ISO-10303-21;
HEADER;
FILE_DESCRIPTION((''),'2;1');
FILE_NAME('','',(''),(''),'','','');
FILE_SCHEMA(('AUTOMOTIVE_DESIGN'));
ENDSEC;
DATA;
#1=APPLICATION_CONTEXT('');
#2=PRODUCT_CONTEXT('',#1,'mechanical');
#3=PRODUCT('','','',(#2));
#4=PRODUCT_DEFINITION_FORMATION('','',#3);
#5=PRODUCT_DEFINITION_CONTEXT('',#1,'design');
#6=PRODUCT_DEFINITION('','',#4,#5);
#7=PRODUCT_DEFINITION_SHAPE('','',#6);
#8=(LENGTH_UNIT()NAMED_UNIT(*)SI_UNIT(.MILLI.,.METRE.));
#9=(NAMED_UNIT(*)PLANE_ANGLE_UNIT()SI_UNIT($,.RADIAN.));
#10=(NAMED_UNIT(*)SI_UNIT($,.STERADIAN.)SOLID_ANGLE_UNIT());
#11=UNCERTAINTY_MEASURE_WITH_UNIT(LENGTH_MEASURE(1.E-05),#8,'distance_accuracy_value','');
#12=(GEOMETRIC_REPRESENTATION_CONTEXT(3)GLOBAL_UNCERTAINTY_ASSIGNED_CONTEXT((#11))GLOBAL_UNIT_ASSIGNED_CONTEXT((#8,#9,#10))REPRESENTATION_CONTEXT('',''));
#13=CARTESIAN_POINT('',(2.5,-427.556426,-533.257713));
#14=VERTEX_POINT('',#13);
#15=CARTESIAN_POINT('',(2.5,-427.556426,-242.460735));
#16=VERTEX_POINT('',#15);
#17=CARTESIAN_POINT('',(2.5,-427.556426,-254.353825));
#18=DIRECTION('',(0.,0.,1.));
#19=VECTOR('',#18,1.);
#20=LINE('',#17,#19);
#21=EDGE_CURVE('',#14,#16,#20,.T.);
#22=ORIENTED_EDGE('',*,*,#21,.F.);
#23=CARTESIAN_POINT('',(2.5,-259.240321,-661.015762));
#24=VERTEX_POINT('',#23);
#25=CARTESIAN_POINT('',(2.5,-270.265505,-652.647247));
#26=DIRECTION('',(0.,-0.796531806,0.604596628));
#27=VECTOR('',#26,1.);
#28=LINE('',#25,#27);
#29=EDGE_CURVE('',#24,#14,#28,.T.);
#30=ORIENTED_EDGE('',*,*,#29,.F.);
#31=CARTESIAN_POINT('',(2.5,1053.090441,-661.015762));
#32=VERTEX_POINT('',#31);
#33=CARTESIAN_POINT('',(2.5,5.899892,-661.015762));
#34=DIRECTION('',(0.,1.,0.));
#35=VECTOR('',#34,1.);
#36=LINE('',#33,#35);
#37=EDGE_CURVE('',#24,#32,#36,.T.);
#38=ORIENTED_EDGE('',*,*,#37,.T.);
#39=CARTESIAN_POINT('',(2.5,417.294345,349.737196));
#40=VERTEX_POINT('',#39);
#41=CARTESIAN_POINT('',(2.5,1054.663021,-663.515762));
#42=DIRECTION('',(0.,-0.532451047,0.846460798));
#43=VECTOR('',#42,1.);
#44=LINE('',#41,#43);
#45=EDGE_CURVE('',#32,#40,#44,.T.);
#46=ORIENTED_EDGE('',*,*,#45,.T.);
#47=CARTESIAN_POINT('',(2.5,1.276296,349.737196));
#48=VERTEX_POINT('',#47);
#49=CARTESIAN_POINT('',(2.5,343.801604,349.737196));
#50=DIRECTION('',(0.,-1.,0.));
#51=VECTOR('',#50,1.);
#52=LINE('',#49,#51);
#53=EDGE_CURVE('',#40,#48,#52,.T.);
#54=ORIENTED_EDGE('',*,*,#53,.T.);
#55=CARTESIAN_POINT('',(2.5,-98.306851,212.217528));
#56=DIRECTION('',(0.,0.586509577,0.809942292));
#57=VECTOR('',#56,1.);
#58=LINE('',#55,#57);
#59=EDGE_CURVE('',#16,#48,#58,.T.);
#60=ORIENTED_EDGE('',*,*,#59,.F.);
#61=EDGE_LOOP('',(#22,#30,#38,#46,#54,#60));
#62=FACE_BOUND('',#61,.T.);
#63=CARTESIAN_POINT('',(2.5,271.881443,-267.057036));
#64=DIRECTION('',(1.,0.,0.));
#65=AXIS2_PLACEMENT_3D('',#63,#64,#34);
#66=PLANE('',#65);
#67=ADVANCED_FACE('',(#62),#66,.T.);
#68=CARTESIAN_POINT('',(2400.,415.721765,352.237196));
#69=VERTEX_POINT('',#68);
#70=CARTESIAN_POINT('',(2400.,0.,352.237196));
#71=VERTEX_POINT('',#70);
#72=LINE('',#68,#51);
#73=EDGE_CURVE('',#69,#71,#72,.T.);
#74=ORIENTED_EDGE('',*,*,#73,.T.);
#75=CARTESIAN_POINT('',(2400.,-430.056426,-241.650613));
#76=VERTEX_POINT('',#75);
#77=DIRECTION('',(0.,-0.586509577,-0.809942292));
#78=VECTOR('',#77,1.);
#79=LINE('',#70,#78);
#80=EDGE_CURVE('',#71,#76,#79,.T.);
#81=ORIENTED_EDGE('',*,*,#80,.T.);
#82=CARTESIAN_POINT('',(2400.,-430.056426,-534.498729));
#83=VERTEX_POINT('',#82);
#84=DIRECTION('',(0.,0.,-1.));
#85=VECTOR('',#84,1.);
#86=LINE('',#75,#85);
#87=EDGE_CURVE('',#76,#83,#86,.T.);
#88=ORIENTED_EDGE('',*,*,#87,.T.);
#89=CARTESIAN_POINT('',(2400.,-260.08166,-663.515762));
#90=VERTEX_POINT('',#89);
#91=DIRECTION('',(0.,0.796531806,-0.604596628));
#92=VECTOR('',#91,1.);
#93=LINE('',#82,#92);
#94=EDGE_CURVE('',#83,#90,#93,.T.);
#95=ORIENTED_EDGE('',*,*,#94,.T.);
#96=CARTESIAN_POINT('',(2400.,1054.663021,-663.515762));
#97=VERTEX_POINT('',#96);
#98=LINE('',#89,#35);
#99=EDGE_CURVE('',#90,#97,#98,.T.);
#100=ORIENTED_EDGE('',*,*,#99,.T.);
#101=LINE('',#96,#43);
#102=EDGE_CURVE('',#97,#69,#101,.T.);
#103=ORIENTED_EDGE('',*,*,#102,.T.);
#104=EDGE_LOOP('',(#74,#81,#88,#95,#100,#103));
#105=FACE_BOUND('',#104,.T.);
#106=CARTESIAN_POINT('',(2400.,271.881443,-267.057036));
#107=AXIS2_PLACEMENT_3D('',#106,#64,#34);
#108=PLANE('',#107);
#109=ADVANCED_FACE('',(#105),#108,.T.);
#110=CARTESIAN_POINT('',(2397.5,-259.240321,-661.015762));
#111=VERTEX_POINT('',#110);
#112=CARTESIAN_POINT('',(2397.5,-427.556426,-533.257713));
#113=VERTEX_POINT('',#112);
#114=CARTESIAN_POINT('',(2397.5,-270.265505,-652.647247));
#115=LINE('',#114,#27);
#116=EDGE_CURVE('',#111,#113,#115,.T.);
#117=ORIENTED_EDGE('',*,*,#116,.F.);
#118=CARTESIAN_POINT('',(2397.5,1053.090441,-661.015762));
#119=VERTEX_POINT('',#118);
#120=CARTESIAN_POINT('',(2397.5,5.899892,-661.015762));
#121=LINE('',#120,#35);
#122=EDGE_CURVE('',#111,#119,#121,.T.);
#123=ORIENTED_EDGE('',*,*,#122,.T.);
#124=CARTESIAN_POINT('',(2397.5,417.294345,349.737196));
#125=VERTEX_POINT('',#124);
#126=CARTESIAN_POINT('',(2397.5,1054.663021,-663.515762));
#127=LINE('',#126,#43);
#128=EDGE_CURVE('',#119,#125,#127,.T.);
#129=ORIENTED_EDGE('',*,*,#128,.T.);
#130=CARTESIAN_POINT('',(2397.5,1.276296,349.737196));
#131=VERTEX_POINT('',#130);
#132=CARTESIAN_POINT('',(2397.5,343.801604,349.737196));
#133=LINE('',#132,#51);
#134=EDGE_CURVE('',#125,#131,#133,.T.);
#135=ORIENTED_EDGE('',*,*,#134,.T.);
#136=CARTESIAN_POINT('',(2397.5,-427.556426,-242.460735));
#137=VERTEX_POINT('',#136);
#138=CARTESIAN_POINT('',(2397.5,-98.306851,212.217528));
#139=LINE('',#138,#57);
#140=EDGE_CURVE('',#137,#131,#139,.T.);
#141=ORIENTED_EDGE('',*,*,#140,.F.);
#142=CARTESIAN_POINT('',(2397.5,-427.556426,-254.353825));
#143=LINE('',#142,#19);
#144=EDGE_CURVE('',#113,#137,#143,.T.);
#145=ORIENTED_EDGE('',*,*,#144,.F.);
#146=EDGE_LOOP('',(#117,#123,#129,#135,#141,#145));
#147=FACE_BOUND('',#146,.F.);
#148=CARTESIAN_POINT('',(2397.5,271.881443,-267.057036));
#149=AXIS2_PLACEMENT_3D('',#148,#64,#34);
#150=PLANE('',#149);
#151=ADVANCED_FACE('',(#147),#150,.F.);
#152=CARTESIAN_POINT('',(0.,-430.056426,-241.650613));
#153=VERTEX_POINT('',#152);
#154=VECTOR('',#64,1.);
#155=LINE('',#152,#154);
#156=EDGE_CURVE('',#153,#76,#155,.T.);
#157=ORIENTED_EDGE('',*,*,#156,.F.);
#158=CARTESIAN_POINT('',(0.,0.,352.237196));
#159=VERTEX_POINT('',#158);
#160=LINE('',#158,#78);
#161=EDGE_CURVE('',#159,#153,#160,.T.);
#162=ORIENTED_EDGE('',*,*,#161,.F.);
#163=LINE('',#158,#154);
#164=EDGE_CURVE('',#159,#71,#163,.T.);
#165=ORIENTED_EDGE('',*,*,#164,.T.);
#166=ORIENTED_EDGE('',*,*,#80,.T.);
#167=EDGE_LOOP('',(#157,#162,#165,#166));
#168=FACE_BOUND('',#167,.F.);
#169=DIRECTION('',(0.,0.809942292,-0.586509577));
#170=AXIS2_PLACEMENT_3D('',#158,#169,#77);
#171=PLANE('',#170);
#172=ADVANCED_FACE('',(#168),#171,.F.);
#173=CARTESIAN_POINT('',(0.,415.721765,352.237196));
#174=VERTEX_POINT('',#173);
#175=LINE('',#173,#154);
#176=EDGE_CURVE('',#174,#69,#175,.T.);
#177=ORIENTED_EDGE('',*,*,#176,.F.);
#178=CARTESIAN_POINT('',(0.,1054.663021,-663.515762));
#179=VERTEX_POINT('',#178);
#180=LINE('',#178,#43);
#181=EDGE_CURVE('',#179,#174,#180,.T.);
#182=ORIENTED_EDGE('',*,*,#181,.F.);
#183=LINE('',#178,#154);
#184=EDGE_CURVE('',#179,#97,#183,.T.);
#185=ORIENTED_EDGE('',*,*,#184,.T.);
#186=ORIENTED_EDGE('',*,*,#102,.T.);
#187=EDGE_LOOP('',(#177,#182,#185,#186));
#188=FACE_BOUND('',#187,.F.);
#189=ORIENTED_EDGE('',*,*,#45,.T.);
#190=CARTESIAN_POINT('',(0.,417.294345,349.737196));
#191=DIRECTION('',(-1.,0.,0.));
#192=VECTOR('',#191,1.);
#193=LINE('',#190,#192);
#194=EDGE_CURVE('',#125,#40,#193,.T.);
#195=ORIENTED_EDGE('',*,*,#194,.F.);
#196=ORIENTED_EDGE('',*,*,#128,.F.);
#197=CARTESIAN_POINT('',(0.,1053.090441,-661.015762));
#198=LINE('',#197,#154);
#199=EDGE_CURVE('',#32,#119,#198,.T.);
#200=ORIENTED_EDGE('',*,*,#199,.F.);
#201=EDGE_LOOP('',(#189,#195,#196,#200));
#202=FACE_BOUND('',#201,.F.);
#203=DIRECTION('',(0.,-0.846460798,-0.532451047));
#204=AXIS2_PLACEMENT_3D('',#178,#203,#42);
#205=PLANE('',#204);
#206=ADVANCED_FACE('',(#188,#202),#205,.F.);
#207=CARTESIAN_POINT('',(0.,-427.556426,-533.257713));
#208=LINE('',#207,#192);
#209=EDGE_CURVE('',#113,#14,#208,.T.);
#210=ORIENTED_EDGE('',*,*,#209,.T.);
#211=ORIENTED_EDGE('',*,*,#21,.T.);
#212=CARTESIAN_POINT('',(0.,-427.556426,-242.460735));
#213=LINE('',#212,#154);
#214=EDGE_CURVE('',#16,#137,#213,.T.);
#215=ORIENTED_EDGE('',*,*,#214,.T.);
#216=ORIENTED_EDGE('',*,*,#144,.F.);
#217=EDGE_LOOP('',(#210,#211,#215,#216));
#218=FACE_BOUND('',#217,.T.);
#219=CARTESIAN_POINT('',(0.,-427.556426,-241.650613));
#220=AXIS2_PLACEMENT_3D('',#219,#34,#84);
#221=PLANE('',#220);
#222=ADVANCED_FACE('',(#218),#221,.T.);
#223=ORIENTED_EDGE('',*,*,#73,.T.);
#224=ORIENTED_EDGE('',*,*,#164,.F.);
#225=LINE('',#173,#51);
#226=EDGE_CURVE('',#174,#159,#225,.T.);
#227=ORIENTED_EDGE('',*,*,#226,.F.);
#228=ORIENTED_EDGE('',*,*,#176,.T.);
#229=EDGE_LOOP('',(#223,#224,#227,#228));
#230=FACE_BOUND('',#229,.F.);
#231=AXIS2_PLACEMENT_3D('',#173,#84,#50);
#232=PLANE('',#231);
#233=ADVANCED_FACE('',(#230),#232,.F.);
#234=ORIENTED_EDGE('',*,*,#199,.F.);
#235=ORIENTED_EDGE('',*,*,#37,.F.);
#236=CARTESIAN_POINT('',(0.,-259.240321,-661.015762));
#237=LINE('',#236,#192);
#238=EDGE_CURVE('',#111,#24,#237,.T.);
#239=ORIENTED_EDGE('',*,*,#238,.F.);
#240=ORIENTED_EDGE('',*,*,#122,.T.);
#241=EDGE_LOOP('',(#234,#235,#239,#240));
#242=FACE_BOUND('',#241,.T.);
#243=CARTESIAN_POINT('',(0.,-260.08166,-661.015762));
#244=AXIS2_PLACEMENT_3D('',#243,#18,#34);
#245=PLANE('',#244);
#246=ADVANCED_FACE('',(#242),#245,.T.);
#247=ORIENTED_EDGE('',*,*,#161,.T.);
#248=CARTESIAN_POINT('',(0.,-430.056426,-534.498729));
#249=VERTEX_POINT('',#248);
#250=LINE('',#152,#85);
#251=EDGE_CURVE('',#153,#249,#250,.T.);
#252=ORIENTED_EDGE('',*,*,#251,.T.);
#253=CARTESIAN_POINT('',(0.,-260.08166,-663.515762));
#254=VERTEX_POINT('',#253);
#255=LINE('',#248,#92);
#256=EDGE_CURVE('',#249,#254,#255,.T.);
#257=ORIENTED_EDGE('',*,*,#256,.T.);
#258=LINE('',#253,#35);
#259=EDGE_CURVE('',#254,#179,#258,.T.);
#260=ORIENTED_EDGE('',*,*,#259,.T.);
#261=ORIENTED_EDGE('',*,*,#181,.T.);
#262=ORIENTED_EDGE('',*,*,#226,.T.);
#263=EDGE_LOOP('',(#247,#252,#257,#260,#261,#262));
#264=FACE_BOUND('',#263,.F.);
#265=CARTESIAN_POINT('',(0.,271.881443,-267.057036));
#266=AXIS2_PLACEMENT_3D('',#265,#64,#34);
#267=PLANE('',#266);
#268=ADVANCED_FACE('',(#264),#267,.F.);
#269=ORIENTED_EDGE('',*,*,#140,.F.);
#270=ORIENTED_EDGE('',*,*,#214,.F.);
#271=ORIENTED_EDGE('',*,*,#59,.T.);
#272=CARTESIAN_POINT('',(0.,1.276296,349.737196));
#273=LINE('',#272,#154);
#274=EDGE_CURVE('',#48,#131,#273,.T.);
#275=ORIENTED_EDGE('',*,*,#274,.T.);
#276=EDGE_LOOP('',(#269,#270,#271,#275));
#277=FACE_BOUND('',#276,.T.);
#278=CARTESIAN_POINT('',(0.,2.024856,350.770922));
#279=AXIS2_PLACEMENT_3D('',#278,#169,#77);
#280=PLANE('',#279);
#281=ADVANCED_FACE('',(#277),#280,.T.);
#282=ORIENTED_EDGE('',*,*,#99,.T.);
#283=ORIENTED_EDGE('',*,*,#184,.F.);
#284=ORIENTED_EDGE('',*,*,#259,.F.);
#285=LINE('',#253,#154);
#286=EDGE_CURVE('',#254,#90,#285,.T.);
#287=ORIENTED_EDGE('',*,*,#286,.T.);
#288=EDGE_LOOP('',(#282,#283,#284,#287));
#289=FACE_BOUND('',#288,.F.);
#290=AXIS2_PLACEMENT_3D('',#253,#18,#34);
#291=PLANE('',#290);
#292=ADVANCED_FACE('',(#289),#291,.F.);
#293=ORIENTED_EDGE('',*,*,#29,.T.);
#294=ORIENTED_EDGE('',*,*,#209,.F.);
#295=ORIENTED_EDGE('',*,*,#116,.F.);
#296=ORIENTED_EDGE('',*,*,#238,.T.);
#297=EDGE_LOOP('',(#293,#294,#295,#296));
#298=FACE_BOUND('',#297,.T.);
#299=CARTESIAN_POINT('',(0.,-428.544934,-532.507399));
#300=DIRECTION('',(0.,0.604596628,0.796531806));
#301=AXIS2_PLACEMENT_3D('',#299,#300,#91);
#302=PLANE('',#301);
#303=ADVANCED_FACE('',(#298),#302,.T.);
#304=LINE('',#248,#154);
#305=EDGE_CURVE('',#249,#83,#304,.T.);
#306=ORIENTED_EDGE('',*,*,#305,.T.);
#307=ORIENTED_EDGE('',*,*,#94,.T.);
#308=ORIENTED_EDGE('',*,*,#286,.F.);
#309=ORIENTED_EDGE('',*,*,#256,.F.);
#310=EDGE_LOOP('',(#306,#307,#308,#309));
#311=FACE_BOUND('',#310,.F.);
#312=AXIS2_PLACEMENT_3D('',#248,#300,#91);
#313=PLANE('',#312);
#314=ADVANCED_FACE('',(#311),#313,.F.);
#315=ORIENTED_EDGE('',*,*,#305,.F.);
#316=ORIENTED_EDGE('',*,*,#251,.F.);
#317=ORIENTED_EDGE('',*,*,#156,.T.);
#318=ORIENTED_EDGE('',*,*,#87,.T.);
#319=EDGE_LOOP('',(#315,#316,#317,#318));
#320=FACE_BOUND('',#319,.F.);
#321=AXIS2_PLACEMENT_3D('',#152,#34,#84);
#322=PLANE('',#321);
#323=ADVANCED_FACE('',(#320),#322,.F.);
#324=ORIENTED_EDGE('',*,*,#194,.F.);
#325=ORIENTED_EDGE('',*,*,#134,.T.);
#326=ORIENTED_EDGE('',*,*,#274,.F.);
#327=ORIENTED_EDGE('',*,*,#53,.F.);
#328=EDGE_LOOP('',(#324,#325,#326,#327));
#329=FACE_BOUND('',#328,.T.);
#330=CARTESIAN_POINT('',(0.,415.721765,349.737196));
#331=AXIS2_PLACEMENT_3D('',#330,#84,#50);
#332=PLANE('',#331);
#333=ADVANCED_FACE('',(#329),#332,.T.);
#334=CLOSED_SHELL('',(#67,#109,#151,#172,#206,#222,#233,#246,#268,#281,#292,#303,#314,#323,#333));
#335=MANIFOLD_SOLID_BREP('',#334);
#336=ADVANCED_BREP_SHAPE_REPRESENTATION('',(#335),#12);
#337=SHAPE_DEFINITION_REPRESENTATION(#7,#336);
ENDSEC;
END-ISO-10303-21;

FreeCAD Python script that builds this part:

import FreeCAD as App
import Part
import Sketcher
from FreeCAD import Vector


def faces_at(feature, points):
    """Names of the faces that lie closest to the given points."""
    faces = feature.Shape.Faces
    near = lambda p: min(range(len(faces)), key=lambda i: faces[i].distToShape(Part.Vertex(*p))[0])
    return sorted({f"Face{near(p) + 1}" for p in points})

doc = App.newDocument("Part")
body = doc.addObject("PartDesign::Body", "Body")

sketch1 = body.newObject("Sketcher::SketchObject", "Sketch")
sketch1.AttachmentSupport = (doc.getObject("YZ_Plane"), [""])
sketch1.MapMode = "FlatFace"
sketch1.addGeometry([
    Part.LineSegment(Vector(1055, -664, 0), Vector(416, 352, 0)),
    Part.LineSegment(Vector(416, 352, 0), Vector(0, 352, 0)),
    Part.LineSegment(Vector(0, 352, 0), Vector(-430, -242, 0)),
    Part.LineSegment(Vector(-430, -242, 0), Vector(-430, -534, 0)),
    Part.LineSegment(Vector(-430, -534, 0), Vector(-260, -664, 0)),
    Part.LineSegment(Vector(-260, -664, 0), Vector(1055, -664, 0)),
], False)
sketch1.addConstraint([
    Sketcher.Constraint("Coincident", 0, 2, 1, 1),
    Sketcher.Constraint("Coincident", 1, 2, 2, 1),
    Sketcher.Constraint("Coincident", 2, 2, 3, 1),
    Sketcher.Constraint("Coincident", 3, 2, 4, 1),
    Sketcher.Constraint("Coincident", 4, 2, 5, 1),
    Sketcher.Constraint("Coincident", 5, 2, 0, 1),
    Sketcher.Constraint("Horizontal", 1),
    Sketcher.Constraint("Vertical", 3),
    Sketcher.Constraint("Horizontal", 5),
    Sketcher.Constraint("PointOnObject", 1, 2, -2),
    Sketcher.Constraint("Distance", 0, 1200.0),
    Sketcher.Constraint("DistanceX", 5, 1, 5, 2, 1314.744681),
    Sketcher.Constraint("Distance", 4, 213.39357),
    Sketcher.Constraint("DistanceX", 1, 2, 1, 1, 415.721765),
    Sketcher.Constraint("DistanceY", 3, 2, 3, 1, 292.848116),
    Sketcher.Constraint("DistanceY", 3, 2, -1, 1, 534.498729),
    Sketcher.Constraint("DistanceX", 4, 2, -1, 1, 260.08166),
    Sketcher.Constraint("DistanceY", 4, 2, -1, 1, 663.515762),
])
pad1 = body.newObject("PartDesign::Pad", "Pad")
pad1.Profile = sketch1
pad1.Length = 2400
doc.recompute()

thickness = body.newObject("PartDesign::Thickness", "Thickness")
thickness.Base = (pad1, faces_at(pad1, [(1200, 735.192, -155.639)]))
thickness.Value = 2.5
thickness.Reversed = True
thickness.Join = "Arc"

doc.recompute()
